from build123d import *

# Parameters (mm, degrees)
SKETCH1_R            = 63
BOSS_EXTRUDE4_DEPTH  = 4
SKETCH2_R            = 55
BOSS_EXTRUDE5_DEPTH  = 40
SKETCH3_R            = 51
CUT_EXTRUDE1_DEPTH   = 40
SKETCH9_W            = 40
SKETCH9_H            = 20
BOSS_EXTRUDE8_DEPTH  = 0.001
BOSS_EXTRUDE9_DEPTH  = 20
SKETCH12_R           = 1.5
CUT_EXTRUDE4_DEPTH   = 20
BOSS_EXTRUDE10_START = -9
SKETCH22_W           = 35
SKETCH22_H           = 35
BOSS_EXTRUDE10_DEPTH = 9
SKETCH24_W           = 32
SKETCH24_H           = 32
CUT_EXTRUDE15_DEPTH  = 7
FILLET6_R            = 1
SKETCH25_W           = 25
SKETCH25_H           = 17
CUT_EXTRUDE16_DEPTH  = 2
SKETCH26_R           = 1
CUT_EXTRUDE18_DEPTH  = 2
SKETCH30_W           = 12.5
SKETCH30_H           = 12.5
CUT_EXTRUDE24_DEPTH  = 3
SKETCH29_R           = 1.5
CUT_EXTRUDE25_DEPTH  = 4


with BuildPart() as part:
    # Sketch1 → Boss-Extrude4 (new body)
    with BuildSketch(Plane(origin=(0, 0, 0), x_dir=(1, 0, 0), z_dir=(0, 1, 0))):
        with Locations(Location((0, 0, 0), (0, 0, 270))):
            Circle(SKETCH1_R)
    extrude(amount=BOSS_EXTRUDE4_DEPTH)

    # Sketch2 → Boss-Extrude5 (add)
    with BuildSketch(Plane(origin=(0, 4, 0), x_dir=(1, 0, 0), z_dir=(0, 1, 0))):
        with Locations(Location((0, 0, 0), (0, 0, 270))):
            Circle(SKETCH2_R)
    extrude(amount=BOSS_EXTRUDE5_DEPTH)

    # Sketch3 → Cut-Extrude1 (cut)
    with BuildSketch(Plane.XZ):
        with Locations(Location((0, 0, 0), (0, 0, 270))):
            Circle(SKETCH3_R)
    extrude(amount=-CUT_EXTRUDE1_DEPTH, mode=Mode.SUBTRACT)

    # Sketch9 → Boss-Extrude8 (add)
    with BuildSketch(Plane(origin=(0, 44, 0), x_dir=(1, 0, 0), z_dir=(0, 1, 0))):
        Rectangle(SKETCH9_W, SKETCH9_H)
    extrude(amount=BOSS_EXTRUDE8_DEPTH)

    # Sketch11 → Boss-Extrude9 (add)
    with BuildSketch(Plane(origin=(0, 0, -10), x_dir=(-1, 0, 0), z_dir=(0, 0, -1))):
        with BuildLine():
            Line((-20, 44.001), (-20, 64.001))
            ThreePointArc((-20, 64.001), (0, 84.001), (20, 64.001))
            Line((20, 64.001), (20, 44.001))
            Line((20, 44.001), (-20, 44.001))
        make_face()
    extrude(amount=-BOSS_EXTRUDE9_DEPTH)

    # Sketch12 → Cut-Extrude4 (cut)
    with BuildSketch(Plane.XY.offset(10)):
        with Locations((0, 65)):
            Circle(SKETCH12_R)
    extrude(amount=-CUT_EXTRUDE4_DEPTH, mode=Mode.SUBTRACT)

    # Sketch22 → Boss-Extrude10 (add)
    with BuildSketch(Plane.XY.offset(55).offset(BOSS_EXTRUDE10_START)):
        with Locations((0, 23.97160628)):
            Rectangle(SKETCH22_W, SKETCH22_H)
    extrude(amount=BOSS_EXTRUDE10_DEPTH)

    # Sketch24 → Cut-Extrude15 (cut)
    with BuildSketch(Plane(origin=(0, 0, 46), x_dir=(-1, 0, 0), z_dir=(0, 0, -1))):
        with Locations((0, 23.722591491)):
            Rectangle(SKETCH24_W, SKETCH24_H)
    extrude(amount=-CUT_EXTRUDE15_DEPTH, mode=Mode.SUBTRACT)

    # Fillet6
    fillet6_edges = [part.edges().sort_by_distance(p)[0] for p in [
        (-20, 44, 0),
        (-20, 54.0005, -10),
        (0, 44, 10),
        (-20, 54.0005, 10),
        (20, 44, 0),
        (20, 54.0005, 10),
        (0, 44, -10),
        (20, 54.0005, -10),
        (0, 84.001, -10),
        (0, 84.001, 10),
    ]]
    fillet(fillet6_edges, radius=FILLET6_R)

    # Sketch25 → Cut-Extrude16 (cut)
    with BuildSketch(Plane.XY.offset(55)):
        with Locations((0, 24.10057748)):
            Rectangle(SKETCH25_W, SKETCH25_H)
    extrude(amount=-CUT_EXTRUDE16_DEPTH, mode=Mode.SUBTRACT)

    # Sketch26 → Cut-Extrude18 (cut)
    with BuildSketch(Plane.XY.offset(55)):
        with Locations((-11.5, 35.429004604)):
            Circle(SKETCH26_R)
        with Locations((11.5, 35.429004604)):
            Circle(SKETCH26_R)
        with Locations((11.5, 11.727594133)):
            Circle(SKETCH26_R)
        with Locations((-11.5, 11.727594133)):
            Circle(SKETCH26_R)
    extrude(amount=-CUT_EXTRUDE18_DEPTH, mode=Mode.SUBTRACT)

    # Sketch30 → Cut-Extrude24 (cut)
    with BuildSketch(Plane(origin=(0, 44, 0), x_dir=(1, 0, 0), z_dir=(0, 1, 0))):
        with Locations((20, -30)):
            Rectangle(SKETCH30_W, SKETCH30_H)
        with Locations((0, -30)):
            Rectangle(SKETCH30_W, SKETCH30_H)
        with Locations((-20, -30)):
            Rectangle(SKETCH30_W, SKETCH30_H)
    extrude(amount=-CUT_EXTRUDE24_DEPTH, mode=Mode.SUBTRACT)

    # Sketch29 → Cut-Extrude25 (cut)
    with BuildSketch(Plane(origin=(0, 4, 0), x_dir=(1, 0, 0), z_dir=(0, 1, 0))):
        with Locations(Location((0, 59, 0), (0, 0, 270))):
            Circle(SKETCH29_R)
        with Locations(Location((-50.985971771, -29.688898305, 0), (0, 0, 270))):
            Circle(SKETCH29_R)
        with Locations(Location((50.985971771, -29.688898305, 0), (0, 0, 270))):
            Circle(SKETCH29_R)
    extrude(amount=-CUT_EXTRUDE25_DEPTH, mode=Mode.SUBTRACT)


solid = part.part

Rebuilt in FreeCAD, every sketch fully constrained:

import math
import FreeCAD as App
import Part
import Sketcher
Q = App.Units.Quantity


def edges_at(feature, points):
    """Names of the edges that pass closest to the given points."""
    edges = feature.Shape.Edges
    near = lambda p: min(range(len(edges)), key=lambda i: edges[i].distToShape(Part.Vertex(*p))[0])
    return sorted({f"Edge{near(p) + 1}" for p in points})

doc = App.newDocument("Part")
params = doc.addObject("Spreadsheet::Sheet", "Params")
for row, (alias, value) in enumerate([
    ("sketch1_diameter", "126 mm"),
    ("pad1_length", "4 mm"),
    ("sketch2_diameter", "110 mm"),
    ("pad2_length", "40 mm"),
    ("sketch3_diameter", "102 mm"),
    ("pocket1_length", "40 mm"),
    ("sketch4_width", "40 mm"),
    ("sketch4_height", "20 mm"),
    ("pad3_length", "0.001 mm"),
    ("sketch5_radius", "20 mm"),
    ("sketch5_height", "20 mm"),
    ("pad4_length", "20 mm"),
    ("sketch6_diameter", "3 mm"),
    ("pocket2_length", "20 mm"),
    ("sketch7_width", "35 mm"),
    ("pad5_length", "9 mm"),
    ("sketch8_width", "32 mm"),
    ("pocket3_length", "7 mm"),
    ("fillet_radius", "1 mm"),
    ("sketch9_width", "25 mm"),
    ("sketch9_height", "17 mm"),
    ("pocket4_length", "2 mm"),
    ("sketch10_diameter", "2 mm"),
    ("pocket5_length", "2 mm"),
    ("sketch11_width", "12.5 mm"),
    ("pocket6_length", "3 mm"),
    ("sketch12_diameter", "3 mm"),
    ("pocket7_length", "4 mm"),
], start=1):
    params.set(f"A{row}", alias)
    params.set(f"B{row}", "=" + value)
    params.setAlias(f"B{row}", alias)

body = doc.addObject("PartDesign::Body", "Body")

sketch1 = doc.addObject("Sketcher::SketchObject", "Sketch")
body.addObject(sketch1)
sketch1.AttachmentSupport = (doc.XZ_Plane, [""])
sketch1.MapMode = "FlatFace"
sketch1.addGeometry(Part.Circle(App.Vector(0, 0, 0), App.Vector(0, 0, 1), 63), False)
sketch1.addConstraint([
    Sketcher.Constraint("Coincident", 0, 3, -1, 1),
    Sketcher.Constraint("Diameter", 0, Q("126 mm")),
])
sketch1.setExpression("Constraints[1]", "Params.sketch1_diameter")
pad1 = doc.addObject("PartDesign::Pad", "Pad")
body.addObject(pad1)
pad1.Profile = sketch1
pad1.setExpression("Length", "Params.pad1_length")
pad1.Reversed = True

sketch2 = doc.addObject("Sketcher::SketchObject", "Sketch001")
body.addObject(sketch2)
sketch2.AttachmentSupport = (doc.XZ_Plane, [""])
sketch2.MapMode = "FlatFace"
sketch2.AttachmentOffset = App.Placement(App.Vector(0, 0, -4), App.Rotation())
sketch2.addGeometry(Part.Circle(App.Vector(0, 0, 0), App.Vector(0, 0, 1), 55), False)
sketch2.addConstraint([
    Sketcher.Constraint("Coincident", 0, 3, -1, 1),
    Sketcher.Constraint("Diameter", 0, Q("110 mm")),
])
sketch2.setExpression("Constraints[1]", "Params.sketch2_diameter")
pad2 = doc.addObject("PartDesign::Pad", "Pad001")
body.addObject(pad2)
pad2.Profile = sketch2
pad2.setExpression("Length", "Params.pad2_length")
pad2.Reversed = True

sketch3 = doc.addObject("Sketcher::SketchObject", "Sketch002")
body.addObject(sketch3)
sketch3.AttachmentSupport = (doc.XZ_Plane, [""])
sketch3.MapMode = "FlatFace"
sketch3.addGeometry(Part.Circle(App.Vector(0, 0, 0), App.Vector(0, 0, 1), 51), False)
sketch3.addConstraint([
    Sketcher.Constraint("Coincident", 0, 3, -1, 1),
    Sketcher.Constraint("Diameter", 0, Q("102 mm")),
])
sketch3.setExpression("Constraints[1]", "Params.sketch3_diameter")
pocket1 = doc.addObject("PartDesign::Pocket", "Pocket")
body.addObject(pocket1)
pocket1.Profile = sketch3
pocket1.setExpression("Length", "Params.pocket1_length")

sketch4 = doc.addObject("Sketcher::SketchObject", "Sketch003")
body.addObject(sketch4)
sketch4.AttachmentSupport = (doc.XZ_Plane, [""])
sketch4.MapMode = "FlatFace"
sketch4.AttachmentOffset = App.Placement(App.Vector(0, 0, -44), App.Rotation())
sketch4.addGeometry([
    Part.LineSegment(App.Vector(-20, -10, 0), App.Vector(-20, 10, 0)),
    Part.LineSegment(App.Vector(-20, 10, 0), App.Vector(20, 10, 0)),
    Part.LineSegment(App.Vector(20, 10, 0), App.Vector(20, -10, 0)),
    Part.LineSegment(App.Vector(20, -10, 0), App.Vector(-20, -10, 0)),
], False)
sketch4.addConstraint([
    Sketcher.Constraint("Coincident", 0, 2, 1, 1),
    Sketcher.Constraint("Coincident", 1, 2, 2, 1),
    Sketcher.Constraint("Coincident", 2, 2, 3, 1),
    Sketcher.Constraint("Coincident", 3, 2, 0, 1),
    Sketcher.Constraint("Vertical", 0),
    Sketcher.Constraint("Horizontal", 1),
    Sketcher.Constraint("Vertical", 2),
    Sketcher.Constraint("Horizontal", 3),
    Sketcher.Constraint("Symmetric", 0, 2, 2, 2, -1, 1),
    Sketcher.Constraint("DistanceX", 1, 1, 1, 2, Q("40 mm")),
    Sketcher.Constraint("DistanceY", 0, 1, 0, 2, Q("20 mm")),
])
sketch4.setExpression("Constraints[9]", "Params.sketch4_width")
sketch4.setExpression("Constraints[10]", "Params.sketch4_height")
pad3 = doc.addObject("PartDesign::Pad", "Pad002")
body.addObject(pad3)
pad3.Profile = sketch4
pad3.setExpression("Length", "Params.pad3_length")
pad3.Reversed = True

sketch5 = doc.addObject("Sketcher::SketchObject", "Sketch004")
body.addObject(sketch5)
sketch5.AttachmentSupport = (doc.XY_Plane, [""])
sketch5.MapMode = "FlatFace"
sketch5.AttachmentOffset = App.Placement(App.Vector(0, 0, -10), App.Rotation())
sketch5.addGeometry([
    Part.LineSegment(App.Vector(20, 64.001, 0), App.Vector(20, 44.001, 0)),
    Part.LineSegment(App.Vector(20, 44.001, 0), App.Vector(-20, 44.001, 0)),
    Part.LineSegment(App.Vector(-20, 44.001, 0), App.Vector(-20, 64.001, 0)),
    Part.ArcOfCircle(Part.Circle(App.Vector(0, 64.001, 0), App.Vector(0, 0, 1), 20), math.radians(0), math.radians(180)),
], False)
sketch5.addConstraint([
    Sketcher.Constraint("Coincident", 0, 2, 1, 1),
    Sketcher.Constraint("Coincident", 1, 2, 2, 1),
    Sketcher.Constraint("Tangent", 2, 2, 3, 2),
    Sketcher.Constraint("Tangent", 3, 1, 0, 1),
    Sketcher.Constraint("Vertical", 0),
    Sketcher.Constraint("Horizontal", 1),
    Sketcher.Constraint("Vertical", 2),
    Sketcher.Constraint("PointOnObject", 3, 3, -2),
    Sketcher.Constraint("Radius", 3, Q("20 mm")),
    Sketcher.Constraint("DistanceY", 0, 2, 0, 1, Q("20 mm")),
    Sketcher.Constraint("DistanceY", -1, 1, 3, 3, Q("64.001 mm")),
])
sketch5.setExpression("Constraints[8]", "Params.sketch5_radius")
sketch5.setExpression("Constraints[9]", "Params.sketch5_height")
pad4 = doc.addObject("PartDesign::Pad", "Pad003")
body.addObject(pad4)
pad4.Profile = sketch5
pad4.setExpression("Length", "Params.pad4_length")

sketch6 = doc.addObject("Sketcher::SketchObject", "Sketch005")
body.addObject(sketch6)
sketch6.AttachmentSupport = (doc.XY_Plane, [""])
sketch6.MapMode = "FlatFace"
sketch6.AttachmentOffset = App.Placement(App.Vector(0, 0, 10), App.Rotation())
sketch6.addGeometry(Part.Circle(App.Vector(0, 65, 0), App.Vector(0, 0, 1), 1.5), False)
sketch6.addConstraint([
    Sketcher.Constraint("PointOnObject", 0, 3, -2),
    Sketcher.Constraint("Diameter", 0, Q("3 mm")),
    Sketcher.Constraint("DistanceY", -1, 1, 0, 3, Q("65 mm")),
])
sketch6.setExpression("Constraints[1]", "Params.sketch6_diameter")
pocket2 = doc.addObject("PartDesign::Pocket", "Pocket001")
body.addObject(pocket2)
pocket2.Profile = sketch6
pocket2.setExpression("Length", "Params.pocket2_length")

sketch7 = doc.addObject("Sketcher::SketchObject", "Sketch006")
body.addObject(sketch7)
sketch7.AttachmentSupport = (doc.XY_Plane, [""])
sketch7.MapMode = "FlatFace"
sketch7.AttachmentOffset = App.Placement(App.Vector(0, 0, 46), App.Rotation())
sketch7.addGeometry([
    Part.LineSegment(App.Vector(-17.5, 41.471606, 0), App.Vector(-17.5, 6.471606, 0)),
    Part.LineSegment(App.Vector(-17.5, 6.471606, 0), App.Vector(17.5, 6.471606, 0)),
    Part.LineSegment(App.Vector(17.5, 6.471606, 0), App.Vector(17.5, 41.471606, 0)),
    Part.LineSegment(App.Vector(17.5, 41.471606, 0), App.Vector(-17.5, 41.471606, 0)),
], False)
sketch7.addConstraint([
    Sketcher.Constraint("Coincident", 0, 2, 1, 1),
    Sketcher.Constraint("Coincident", 1, 2, 2, 1),
    Sketcher.Constraint("Coincident", 2, 2, 3, 1),
    Sketcher.Constraint("Coincident", 3, 2, 0, 1),
    Sketcher.Constraint("Vertical", 0),
    Sketcher.Constraint("Horizontal", 1),
    Sketcher.Constraint("Vertical", 2),
    Sketcher.Constraint("Horizontal", 3),
    Sketcher.Constraint("Equal", 3, 0),
    Sketcher.Constraint("DistanceX", 1, 1, 1, 2, Q("35 mm")),
    Sketcher.Constraint("DistanceX", 0, 2, -1, 1, Q("17.5 mm")),
    Sketcher.Constraint("DistanceY", -1, 1, 0, 2, Q("6.471606 mm")),
])
sketch7.setExpression("Constraints[9]", "Params.sketch7_width")
pad5 = doc.addObject("PartDesign::Pad", "Pad004")
body.addObject(pad5)
pad5.Profile = sketch7
pad5.setExpression("Length", "Params.pad5_length")

sketch8 = doc.addObject("Sketcher::SketchObject", "Sketch007")
body.addObject(sketch8)
sketch8.AttachmentSupport = (doc.XY_Plane, [""])
sketch8.MapMode = "FlatFace"
sketch8.AttachmentOffset = App.Placement(App.Vector(0, 0, 46), App.Rotation())
sketch8.addGeometry([
    Part.LineSegment(App.Vector(16, 39.722591, 0), App.Vector(16, 7.722591, 0)),
    Part.LineSegment(App.Vector(16, 7.722591, 0), App.Vector(-16, 7.722591, 0)),
    Part.LineSegment(App.Vector(-16, 7.722591, 0), App.Vector(-16, 39.722591, 0)),
    Part.LineSegment(App.Vector(-16, 39.722591, 0), App.Vector(16, 39.722591, 0)),
], False)
sketch8.addConstraint([
    Sketcher.Constraint("Coincident", 0, 2, 1, 1),
    Sketcher.Constraint("Coincident", 1, 2, 2, 1),
    Sketcher.Constraint("Coincident", 2, 2, 3, 1),
    Sketcher.Constraint("Coincident", 3, 2, 0, 1),
    Sketcher.Constraint("Vertical", 0),
    Sketcher.Constraint("Horizontal", 1),
    Sketcher.Constraint("Vertical", 2),
    Sketcher.Constraint("Horizontal", 3),
    Sketcher.Constraint("Equal", 3, 0),
    Sketcher.Constraint("DistanceX", 1, 2, 1, 1, Q("32 mm")),
    Sketcher.Constraint("DistanceX", -1, 1, 0, 2, Q("16 mm")),
    Sketcher.Constraint("DistanceY", -1, 1, 0, 2, Q("7.722591 mm")),
])
sketch8.setExpression("Constraints[9]", "Params.sketch8_width")
pocket3 = doc.addObject("PartDesign::Pocket", "Pocket002")
body.addObject(pocket3)
pocket3.Profile = sketch8
pocket3.setExpression("Length", "Params.pocket3_length")
pocket3.Reversed = True
doc.recompute()

fillet = doc.addObject("PartDesign::Fillet", "Fillet")
body.addObject(fillet)
fillet.Base = (pocket3, edges_at(pocket3, [
    (-20, 44, 0),
    (-20, 54.001, -10),
    (0, 44, 10),
    (-20, 54.001, 10),
    (20, 44, 0),
    (20, 54.001, 10),
    (0, 44, -10),
    (20, 54.001, -10),
    (0, 84.001, -10),
    (0, 84.001, 10),
]))
fillet.setExpression("Radius", "Params.fillet_radius")

sketch9 = doc.addObject("Sketcher::SketchObject", "Sketch008")
body.addObject(sketch9)
sketch9.AttachmentSupport = (doc.XY_Plane, [""])
sketch9.MapMode = "FlatFace"
sketch9.AttachmentOffset = App.Placement(App.Vector(0, 0, 55), App.Rotation())
sketch9.addGeometry([
    Part.LineSegment(App.Vector(-12.5, 32.600577, 0), App.Vector(-12.5, 15.600577, 0)),
    Part.LineSegment(App.Vector(-12.5, 15.600577, 0), App.Vector(12.5, 15.600577, 0)),
    Part.LineSegment(App.Vector(12.5, 15.600577, 0), App.Vector(12.5, 32.600577, 0)),
    Part.LineSegment(App.Vector(12.5, 32.600577, 0), App.Vector(-12.5, 32.600577, 0)),
], False)
sketch9.addConstraint([
    Sketcher.Constraint("Coincident", 0, 2, 1, 1),
    Sketcher.Constraint("Coincident", 1, 2, 2, 1),
    Sketcher.Constraint("Coincident", 2, 2, 3, 1),
    Sketcher.Constraint("Coincident", 3, 2, 0, 1),
    Sketcher.Constraint("Vertical", 0),
    Sketcher.Constraint("Horizontal", 1),
    Sketcher.Constraint("Vertical", 2),
    Sketcher.Constraint("Horizontal", 3),
    Sketcher.Constraint("DistanceX", 1, 1, 1, 2, Q("25 mm")),
    Sketcher.Constraint("DistanceY", 0, 2, 0, 1, Q("17 mm")),
    Sketcher.Constraint("DistanceX", 0, 2, -1, 1, Q("12.5 mm")),
    Sketcher.Constraint("DistanceY", -1, 1, 0, 2, Q("15.600577 mm")),
])
sketch9.setExpression("Constraints[8]", "Params.sketch9_width")
sketch9.setExpression("Constraints[9]", "Params.sketch9_height")
pocket4 = doc.addObject("PartDesign::Pocket", "Pocket003")
body.addObject(pocket4)
pocket4.Profile = sketch9
pocket4.setExpression("Length", "Params.pocket4_length")

sketch10 = doc.addObject("Sketcher::SketchObject", "Sketch009")
body.addObject(sketch10)
sketch10.AttachmentSupport = (doc.XY_Plane, [""])
sketch10.MapMode = "FlatFace"
sketch10.AttachmentOffset = App.Placement(App.Vector(0, 0, 55), App.Rotation())
sketch10.addGeometry([
    Part.Circle(App.Vector(-11.5, 35.429005, 0), App.Vector(0, 0, 1), 1),
    Part.Circle(App.Vector(11.5, 35.429005, 0), App.Vector(0, 0, 1), 1),
    Part.Circle(App.Vector(11.5, 11.727594, 0), App.Vector(0, 0, 1), 1),
    Part.Circle(App.Vector(-11.5, 11.727594, 0), App.Vector(0, 0, 1), 1),
], False)
sketch10.addConstraint([
    Sketcher.Constraint("Equal", 0, 1),
    Sketcher.Constraint("Equal", 1, 2),
    Sketcher.Constraint("Equal", 2, 3),
    Sketcher.Constraint("Symmetric", 0, 3, 1, 3, -2),
    Sketcher.Constraint("Symmetric", 2, 3, 3, 3, -2),
    Sketcher.Constraint("Vertical", 1, 3, 2, 3),
    Sketcher.Constraint("Diameter", 0, Q("2 mm")),
    Sketcher.Constraint("DistanceX", 0, 3, 1, 3, Q("23 mm")),
    Sketcher.Constraint("DistanceY", 2, 3, 1, 3, Q("23.70141 mm")),
    Sketcher.Constraint("DistanceY", -1, 1, 0, 3, Q("35.429005 mm")),
])
sketch10.setExpression("Constraints[6]", "Params.sketch10_diameter")
pocket5 = doc.addObject("PartDesign::Pocket", "Pocket004")
body.addObject(pocket5)
pocket5.Profile = sketch10
pocket5.setExpression("Length", "Params.pocket5_length")

sketch11 = doc.addObject("Sketcher::SketchObject", "Sketch010")
body.addObject(sketch11)
sketch11.AttachmentSupport = (doc.XZ_Plane, [""])
sketch11.MapMode = "FlatFace"
sketch11.AttachmentOffset = App.Placement(App.Vector(0, 0, -44), App.Rotation())
sketch11.addGeometry([
    Part.LineSegment(App.Vector(13.75, 23.75, 0), App.Vector(13.75, 36.25, 0)),
    Part.LineSegment(App.Vector(13.75, 36.25, 0), App.Vector(26.25, 36.25, 0)),
    Part.LineSegment(App.Vector(26.25, 36.25, 0), App.Vector(26.25, 23.75, 0)),
    Part.LineSegment(App.Vector(26.25, 23.75, 0), App.Vector(13.75, 23.75, 0)),
    Part.LineSegment(App.Vector(-6.25, 23.75, 0), App.Vector(-6.25, 36.25, 0)),
    Part.LineSegment(App.Vector(-6.25, 36.25, 0), App.Vector(6.25, 36.25, 0)),
    Part.LineSegment(App.Vector(6.25, 36.25, 0), App.Vector(6.25, 23.75, 0)),
    Part.LineSegment(App.Vector(6.25, 23.75, 0), App.Vector(-6.25, 23.75, 0)),
    Part.LineSegment(App.Vector(-26.25, 23.75, 0), App.Vector(-26.25, 36.25, 0)),
    Part.LineSegment(App.Vector(-26.25, 36.25, 0), App.Vector(-13.75, 36.25, 0)),
    Part.LineSegment(App.Vector(-13.75, 36.25, 0), App.Vector(-13.75, 23.75, 0)),
    Part.LineSegment(App.Vector(-13.75, 23.75, 0), App.Vector(-26.25, 23.75, 0)),
], False)
sketch11.addConstraint([
    Sketcher.Constraint("Coincident", 0, 2, 1, 1),
    Sketcher.Constraint("Coincident", 1, 2, 2, 1),
    Sketcher.Constraint("Coincident", 2, 2, 3, 1),
    Sketcher.Constraint("Coincident", 3, 2, 0, 1),
    Sketcher.Constraint("Coincident", 4, 2, 5, 1),
    Sketcher.Constraint("Coincident", 5, 2, 6, 1),
    Sketcher.Constraint("Coincident", 6, 2, 7, 1),
    Sketcher.Constraint("Coincident", 7, 2, 4, 1),
    Sketcher.Constraint("Coincident", 8, 2, 9, 1),
    Sketcher.Constraint("Coincident", 9, 2, 10, 1),
    Sketcher.Constraint("Coincident", 10, 2, 11, 1),
    Sketcher.Constraint("Coincident", 11, 2, 8, 1),
    Sketcher.Constraint("Vertical", 0),
    Sketcher.Constraint("Horizontal", 1),
    Sketcher.Constraint("Vertical", 2),
    Sketcher.Constraint("Horizontal", 3),
    Sketcher.Constraint("Vertical", 4),
    Sketcher.Constraint("Horizontal", 5),
    Sketcher.Constraint("Vertical", 6),
    Sketcher.Constraint("Horizontal", 7),
    Sketcher.Constraint("Vertical", 8),
    Sketcher.Constraint("Horizontal", 9),
    Sketcher.Constraint("Vertical", 10),
    Sketcher.Constraint("Horizontal", 11),
    Sketcher.Constraint("Symmetric", 1, 2, 8, 2, -2),
    Sketcher.Constraint("Symmetric", 3, 2, 10, 2, -2),
    Sketcher.Constraint("Horizontal", 1, 2, 4, 2),
    Sketcher.Constraint("Horizontal", 3, 2, 6, 2),
    Sketcher.Constraint("Equal", 3, 5),
    Sketcher.Constraint("Equal", 11, 0),
    Sketcher.Constraint("DistanceX", 1, 1, 1, 2, Q("12.5 mm")),
    Sketcher.Constraint("DistanceX", 4, 2, 0, 2, Q("20 mm")),
    Sketcher.Constraint("DistanceX", 8, 2, 4, 2, Q("20 mm")),
    Sketcher.Constraint("DistanceY", -1, 1, 0, 2, Q("36.25 mm")),
])
sketch11.setExpression("Constraints[30]", "Params.sketch11_width")
pocket6 = doc.addObject("PartDesign::Pocket", "Pocket005")
body.addObject(pocket6)
pocket6.Profile = sketch11
pocket6.setExpression("Length", "Params.pocket6_length")
pocket6.Reversed = True

sketch12 = doc.addObject("Sketcher::SketchObject", "Sketch011")
body.addObject(sketch12)
sketch12.AttachmentSupport = (doc.XZ_Plane, [""])
sketch12.MapMode = "FlatFace"
sketch12.AttachmentOffset = App.Placement(App.Vector(0, 0, -4), App.Rotation())
sketch12.addGeometry([
    Part.Circle(App.Vector(0, -59, 0), App.Vector(0, 0, 1), 1.5),
    Part.Circle(App.Vector(-50.985972, 29.688898, 0), App.Vector(0, 0, 1), 1.5),
    Part.Circle(App.Vector(50.985972, 29.688898, 0), App.Vector(0, 0, 1), 1.5),
], False)
sketch12.addConstraint([
    Sketcher.Constraint("Equal", 0, 1),
    Sketcher.Constraint("Equal", 1, 2),
    Sketcher.Constraint("Symmetric", 1, 3, 2, 3, -2),
    Sketcher.Constraint("PointOnObject", 0, 3, -2),
    Sketcher.Constraint("Diameter", 0, Q("3 mm")),
    Sketcher.Constraint("DistanceY", 0, 3, -1, 1, Q("59 mm")),
    Sketcher.Constraint("DistanceY", -1, 1, 1, 3, Q("29.688898 mm")),
    Sketcher.Constraint("DistanceX", 1, 3, -1, 1, Q("50.985972 mm")),
])
sketch12.setExpression("Constraints[4]", "Params.sketch12_diameter")
pocket7 = doc.addObject("PartDesign::Pocket", "Pocket006")
body.addObject(pocket7)
pocket7.Profile = sketch12
pocket7.setExpression("Length", "Params.pocket7_length")
pocket7.Reversed = True

doc.recompute()
